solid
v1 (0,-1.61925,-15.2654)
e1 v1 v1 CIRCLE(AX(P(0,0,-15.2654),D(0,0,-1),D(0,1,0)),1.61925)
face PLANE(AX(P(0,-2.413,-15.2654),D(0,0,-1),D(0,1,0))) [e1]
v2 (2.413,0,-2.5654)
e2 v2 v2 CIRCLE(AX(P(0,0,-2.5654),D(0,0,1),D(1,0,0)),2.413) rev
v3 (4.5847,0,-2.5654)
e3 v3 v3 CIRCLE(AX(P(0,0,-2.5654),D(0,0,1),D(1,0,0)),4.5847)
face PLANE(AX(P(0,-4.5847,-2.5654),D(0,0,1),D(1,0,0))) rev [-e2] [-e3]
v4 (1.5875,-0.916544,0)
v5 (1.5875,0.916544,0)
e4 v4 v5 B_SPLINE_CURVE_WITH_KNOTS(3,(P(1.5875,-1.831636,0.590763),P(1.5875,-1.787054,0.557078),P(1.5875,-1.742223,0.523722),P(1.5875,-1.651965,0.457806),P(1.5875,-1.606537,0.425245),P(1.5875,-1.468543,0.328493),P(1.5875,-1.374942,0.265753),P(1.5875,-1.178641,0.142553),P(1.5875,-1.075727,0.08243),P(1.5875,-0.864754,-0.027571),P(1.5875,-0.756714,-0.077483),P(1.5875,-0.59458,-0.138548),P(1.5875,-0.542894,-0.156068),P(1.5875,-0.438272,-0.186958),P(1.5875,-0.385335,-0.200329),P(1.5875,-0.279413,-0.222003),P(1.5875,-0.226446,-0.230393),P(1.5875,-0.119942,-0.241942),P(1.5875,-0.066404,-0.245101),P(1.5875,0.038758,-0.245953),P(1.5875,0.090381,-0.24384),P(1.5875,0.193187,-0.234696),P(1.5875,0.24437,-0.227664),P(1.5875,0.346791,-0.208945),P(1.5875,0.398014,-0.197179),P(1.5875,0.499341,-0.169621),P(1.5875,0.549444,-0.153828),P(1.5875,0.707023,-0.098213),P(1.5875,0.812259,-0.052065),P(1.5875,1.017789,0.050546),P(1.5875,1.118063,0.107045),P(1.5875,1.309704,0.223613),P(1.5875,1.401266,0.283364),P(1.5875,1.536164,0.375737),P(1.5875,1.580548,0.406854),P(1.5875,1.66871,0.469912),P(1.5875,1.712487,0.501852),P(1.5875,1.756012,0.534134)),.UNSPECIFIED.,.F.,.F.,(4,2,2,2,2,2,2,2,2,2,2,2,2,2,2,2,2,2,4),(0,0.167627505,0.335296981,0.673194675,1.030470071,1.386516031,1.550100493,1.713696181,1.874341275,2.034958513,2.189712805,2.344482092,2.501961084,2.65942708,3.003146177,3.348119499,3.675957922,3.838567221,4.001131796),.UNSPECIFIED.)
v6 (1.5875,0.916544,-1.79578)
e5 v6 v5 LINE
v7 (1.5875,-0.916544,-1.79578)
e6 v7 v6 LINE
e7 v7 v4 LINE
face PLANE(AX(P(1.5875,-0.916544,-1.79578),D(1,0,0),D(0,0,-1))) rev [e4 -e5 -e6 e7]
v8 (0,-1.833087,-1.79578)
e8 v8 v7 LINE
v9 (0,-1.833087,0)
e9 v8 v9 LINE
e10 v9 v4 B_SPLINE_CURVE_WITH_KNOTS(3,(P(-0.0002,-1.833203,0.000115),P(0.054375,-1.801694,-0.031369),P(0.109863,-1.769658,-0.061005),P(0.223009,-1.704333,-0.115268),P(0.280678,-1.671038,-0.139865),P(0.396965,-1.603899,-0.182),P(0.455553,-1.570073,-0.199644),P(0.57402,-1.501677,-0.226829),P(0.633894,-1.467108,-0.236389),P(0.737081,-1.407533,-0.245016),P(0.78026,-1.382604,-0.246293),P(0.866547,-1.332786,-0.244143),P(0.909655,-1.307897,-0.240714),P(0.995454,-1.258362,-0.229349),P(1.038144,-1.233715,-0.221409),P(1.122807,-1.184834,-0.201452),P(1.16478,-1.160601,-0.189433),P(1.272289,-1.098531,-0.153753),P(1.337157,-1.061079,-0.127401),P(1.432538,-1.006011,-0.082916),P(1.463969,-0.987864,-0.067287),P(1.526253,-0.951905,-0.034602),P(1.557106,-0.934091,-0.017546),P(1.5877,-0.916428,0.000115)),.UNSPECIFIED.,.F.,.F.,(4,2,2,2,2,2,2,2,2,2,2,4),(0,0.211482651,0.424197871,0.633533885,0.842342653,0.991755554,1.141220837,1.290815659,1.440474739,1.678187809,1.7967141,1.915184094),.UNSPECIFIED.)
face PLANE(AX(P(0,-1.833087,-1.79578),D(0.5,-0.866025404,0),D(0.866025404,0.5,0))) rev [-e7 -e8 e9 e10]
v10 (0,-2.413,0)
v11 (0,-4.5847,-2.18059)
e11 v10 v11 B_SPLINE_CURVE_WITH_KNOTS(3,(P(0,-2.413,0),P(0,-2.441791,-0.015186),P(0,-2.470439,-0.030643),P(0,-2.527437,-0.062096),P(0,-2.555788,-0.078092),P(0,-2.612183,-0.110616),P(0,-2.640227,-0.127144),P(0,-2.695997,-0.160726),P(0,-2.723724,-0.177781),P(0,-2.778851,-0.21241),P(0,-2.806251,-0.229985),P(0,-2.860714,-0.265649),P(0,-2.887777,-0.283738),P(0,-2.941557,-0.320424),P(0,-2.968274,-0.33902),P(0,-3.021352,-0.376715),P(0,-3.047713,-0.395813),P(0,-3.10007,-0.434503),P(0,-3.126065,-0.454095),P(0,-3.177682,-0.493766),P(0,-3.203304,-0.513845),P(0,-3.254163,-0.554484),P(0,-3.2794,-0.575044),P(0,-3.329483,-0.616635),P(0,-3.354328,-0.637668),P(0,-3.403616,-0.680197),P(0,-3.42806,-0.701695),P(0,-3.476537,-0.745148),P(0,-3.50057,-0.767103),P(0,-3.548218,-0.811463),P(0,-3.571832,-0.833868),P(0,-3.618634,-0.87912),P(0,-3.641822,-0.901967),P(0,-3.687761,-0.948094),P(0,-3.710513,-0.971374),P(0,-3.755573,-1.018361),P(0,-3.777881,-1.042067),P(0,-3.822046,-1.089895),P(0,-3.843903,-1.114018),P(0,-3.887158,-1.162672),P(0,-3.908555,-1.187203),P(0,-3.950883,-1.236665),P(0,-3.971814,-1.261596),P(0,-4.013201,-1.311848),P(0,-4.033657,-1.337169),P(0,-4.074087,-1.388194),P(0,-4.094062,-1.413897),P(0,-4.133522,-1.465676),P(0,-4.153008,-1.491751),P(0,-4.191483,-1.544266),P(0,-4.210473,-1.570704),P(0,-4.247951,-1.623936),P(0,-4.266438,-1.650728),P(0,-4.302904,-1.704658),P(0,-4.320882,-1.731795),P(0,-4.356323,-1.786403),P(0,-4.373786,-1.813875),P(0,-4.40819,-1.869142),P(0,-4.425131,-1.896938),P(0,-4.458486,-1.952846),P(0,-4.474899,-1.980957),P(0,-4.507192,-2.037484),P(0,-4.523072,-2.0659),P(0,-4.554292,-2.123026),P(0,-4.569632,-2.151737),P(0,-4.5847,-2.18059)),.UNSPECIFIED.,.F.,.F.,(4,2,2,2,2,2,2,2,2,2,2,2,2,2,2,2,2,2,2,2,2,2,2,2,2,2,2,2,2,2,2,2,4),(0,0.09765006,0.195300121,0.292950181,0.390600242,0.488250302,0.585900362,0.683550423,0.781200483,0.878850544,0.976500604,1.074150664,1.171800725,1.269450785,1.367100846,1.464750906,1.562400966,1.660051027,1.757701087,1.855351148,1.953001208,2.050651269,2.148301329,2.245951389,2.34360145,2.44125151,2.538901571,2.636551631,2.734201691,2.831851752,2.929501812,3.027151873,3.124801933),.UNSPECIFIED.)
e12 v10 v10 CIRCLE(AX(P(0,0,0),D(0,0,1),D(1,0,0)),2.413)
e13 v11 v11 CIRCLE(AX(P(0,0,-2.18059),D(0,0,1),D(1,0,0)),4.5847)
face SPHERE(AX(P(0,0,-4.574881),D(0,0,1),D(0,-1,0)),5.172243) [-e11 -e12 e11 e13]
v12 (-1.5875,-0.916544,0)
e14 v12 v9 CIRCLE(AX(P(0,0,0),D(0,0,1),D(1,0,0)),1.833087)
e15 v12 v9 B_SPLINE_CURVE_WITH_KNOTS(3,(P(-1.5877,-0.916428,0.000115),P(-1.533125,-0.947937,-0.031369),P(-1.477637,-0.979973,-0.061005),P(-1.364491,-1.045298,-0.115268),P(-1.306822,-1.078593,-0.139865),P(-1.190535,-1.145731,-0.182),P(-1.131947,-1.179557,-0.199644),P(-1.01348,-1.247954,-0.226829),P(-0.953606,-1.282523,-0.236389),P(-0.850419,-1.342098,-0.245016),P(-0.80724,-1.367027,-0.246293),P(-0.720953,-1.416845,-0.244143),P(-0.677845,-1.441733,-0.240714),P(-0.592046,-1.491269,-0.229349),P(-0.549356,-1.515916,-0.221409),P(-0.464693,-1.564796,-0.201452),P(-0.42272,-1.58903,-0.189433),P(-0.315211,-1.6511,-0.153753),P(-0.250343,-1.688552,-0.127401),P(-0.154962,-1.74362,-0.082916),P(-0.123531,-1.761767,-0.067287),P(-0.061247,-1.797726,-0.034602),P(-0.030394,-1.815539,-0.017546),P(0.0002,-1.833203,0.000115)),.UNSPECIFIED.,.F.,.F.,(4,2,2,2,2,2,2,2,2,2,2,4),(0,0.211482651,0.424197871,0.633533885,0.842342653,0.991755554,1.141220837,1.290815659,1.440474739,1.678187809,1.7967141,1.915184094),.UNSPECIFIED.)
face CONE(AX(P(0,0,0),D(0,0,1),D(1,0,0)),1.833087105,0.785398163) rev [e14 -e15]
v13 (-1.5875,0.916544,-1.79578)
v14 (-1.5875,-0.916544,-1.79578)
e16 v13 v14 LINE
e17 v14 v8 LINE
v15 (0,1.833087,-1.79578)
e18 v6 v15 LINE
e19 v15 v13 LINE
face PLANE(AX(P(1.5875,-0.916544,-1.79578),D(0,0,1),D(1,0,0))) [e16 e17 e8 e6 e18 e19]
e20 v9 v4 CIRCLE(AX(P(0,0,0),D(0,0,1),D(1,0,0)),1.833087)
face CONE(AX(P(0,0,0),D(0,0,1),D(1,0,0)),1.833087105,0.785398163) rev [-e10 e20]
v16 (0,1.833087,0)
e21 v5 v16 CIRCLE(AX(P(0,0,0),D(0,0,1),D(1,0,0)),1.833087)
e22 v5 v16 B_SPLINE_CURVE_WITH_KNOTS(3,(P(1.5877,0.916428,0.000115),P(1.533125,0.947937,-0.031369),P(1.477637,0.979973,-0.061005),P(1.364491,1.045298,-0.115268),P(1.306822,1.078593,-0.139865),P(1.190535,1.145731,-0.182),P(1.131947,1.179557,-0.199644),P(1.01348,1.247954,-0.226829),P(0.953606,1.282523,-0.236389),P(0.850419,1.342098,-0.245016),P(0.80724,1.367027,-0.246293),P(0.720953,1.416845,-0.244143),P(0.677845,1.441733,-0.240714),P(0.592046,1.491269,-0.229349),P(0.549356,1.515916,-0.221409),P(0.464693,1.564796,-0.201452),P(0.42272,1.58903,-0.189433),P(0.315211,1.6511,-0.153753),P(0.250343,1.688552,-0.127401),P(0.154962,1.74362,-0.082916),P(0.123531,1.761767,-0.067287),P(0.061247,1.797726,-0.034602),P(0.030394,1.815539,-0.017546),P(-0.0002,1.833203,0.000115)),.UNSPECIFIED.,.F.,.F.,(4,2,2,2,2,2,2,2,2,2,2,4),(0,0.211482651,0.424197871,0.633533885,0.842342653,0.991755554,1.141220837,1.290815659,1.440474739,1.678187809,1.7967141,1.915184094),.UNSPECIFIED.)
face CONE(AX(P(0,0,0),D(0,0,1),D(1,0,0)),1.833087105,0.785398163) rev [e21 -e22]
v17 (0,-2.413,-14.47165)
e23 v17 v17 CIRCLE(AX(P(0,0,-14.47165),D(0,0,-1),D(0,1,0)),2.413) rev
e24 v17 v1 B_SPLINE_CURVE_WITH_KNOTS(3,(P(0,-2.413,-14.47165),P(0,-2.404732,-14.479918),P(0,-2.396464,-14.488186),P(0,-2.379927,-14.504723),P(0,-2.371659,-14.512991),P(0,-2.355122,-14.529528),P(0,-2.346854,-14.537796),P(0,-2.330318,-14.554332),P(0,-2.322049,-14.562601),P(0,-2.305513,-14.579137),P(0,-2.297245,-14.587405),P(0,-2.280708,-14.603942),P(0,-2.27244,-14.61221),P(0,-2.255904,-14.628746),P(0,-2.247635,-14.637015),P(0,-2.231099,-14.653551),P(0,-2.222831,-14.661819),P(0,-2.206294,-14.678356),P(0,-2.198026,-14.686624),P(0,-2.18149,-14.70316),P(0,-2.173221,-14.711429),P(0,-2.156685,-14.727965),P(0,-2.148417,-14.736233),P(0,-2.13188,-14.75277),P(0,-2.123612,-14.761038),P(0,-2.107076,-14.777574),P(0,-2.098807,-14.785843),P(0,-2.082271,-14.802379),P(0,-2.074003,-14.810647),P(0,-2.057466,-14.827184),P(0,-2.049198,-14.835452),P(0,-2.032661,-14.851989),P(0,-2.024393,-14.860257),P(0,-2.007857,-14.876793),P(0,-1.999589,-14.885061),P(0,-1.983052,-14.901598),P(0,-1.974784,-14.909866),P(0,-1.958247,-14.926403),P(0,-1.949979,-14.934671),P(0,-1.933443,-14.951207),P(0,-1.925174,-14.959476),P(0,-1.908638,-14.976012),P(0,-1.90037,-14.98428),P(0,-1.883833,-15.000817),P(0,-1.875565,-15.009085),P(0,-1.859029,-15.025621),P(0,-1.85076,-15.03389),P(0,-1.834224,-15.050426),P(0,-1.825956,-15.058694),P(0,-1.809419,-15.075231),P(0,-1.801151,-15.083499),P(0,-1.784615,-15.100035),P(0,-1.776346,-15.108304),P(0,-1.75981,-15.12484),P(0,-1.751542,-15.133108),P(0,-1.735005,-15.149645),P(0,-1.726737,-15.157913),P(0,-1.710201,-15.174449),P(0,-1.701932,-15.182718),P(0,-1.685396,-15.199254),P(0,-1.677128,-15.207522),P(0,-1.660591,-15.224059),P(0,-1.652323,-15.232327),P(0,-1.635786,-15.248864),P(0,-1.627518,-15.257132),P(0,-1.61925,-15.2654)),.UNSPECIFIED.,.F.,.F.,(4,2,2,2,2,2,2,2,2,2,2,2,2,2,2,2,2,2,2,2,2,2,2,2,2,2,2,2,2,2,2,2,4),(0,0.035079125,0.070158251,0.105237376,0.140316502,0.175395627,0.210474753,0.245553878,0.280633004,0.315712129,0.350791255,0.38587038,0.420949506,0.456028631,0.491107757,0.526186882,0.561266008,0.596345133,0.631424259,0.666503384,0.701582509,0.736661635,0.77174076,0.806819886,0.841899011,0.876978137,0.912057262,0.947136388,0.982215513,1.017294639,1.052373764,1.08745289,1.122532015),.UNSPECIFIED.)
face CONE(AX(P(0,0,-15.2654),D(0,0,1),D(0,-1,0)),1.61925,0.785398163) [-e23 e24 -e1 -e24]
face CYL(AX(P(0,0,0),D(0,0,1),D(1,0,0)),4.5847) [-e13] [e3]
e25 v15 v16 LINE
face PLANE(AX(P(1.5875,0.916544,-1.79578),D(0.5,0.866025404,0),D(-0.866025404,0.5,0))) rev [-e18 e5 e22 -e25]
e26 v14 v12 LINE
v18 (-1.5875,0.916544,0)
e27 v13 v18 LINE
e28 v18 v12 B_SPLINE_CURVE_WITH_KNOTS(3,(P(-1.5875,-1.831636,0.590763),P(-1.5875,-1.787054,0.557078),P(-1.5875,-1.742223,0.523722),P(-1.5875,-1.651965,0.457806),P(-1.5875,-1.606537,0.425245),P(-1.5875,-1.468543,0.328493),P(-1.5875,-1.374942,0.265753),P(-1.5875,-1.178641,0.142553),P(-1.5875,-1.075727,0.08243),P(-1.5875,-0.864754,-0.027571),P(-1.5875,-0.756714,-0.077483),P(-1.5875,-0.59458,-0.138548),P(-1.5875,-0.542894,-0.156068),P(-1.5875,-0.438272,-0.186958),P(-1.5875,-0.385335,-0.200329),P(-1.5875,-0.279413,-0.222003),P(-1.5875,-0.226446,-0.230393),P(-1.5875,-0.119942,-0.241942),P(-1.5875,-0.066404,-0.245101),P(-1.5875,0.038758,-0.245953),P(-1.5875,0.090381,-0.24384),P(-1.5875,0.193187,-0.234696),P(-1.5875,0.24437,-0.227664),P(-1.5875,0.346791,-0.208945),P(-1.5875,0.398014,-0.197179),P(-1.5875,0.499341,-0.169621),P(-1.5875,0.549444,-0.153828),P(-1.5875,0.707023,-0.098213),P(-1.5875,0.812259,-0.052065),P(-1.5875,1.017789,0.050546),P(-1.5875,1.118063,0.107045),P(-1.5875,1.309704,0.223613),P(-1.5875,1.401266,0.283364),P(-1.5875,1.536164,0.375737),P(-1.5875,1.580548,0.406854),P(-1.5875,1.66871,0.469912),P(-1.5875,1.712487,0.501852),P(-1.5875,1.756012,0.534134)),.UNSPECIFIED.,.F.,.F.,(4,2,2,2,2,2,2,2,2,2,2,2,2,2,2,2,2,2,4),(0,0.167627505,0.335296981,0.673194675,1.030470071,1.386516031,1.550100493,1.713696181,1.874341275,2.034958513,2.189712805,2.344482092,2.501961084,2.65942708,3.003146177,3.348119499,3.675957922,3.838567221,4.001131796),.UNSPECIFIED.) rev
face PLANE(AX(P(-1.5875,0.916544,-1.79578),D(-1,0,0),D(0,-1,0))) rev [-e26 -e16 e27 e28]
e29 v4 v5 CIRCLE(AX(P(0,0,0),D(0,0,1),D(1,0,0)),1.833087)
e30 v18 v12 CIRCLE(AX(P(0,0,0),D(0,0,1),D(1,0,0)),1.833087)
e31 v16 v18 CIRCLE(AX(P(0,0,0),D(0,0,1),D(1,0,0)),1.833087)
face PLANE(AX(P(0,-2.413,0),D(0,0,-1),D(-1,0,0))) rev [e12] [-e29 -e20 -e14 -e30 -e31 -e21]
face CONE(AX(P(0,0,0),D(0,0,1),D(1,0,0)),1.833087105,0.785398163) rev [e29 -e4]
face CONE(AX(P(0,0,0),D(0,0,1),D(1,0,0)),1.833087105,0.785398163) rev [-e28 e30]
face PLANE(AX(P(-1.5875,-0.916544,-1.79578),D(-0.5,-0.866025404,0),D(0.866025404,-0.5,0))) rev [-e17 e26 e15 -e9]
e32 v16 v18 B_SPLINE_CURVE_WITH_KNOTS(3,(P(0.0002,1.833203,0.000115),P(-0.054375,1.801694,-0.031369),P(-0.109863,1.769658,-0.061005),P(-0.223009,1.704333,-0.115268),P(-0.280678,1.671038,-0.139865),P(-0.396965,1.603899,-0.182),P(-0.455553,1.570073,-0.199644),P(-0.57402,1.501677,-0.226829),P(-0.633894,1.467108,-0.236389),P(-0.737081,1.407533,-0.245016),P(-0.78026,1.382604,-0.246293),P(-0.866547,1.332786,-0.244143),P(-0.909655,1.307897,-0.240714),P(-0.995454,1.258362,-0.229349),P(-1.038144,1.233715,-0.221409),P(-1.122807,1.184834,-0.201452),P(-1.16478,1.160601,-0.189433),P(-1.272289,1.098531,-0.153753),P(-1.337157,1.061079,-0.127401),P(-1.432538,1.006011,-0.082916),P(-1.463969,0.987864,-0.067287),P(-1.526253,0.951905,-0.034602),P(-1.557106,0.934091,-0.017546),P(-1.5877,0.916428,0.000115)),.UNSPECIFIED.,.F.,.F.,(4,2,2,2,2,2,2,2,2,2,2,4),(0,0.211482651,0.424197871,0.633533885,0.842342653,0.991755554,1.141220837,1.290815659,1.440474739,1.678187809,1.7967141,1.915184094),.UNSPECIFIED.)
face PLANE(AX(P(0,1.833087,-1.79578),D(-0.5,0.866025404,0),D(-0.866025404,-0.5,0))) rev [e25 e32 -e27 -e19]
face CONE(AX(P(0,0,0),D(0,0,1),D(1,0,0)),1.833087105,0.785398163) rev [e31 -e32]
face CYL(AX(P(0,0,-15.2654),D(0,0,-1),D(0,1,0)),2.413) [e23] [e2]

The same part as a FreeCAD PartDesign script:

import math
import FreeCAD as App
import Part
import Sketcher
from FreeCAD import Vector
Q = App.Units.Quantity


def edges_at(feature, points):
    """Names of the edges that pass closest to the given points."""
    edges = feature.Shape.Edges
    near = lambda p: min(range(len(edges)), key=lambda i: edges[i].distToShape(Part.Vertex(*p))[0])
    return sorted({f"Edge{near(p) + 1}" for p in points})


def add_polygon(sketch, points):
    """Adds a closed chain of lines whose ends are joined by coincident constraints."""
    first, n = sketch.GeometryCount, len(points)
    for a, b in zip(points, points[1:] + points[:1]):
        sketch.addGeometry(Part.LineSegment(App.Vector(*a, 0), App.Vector(*b, 0)), False)
    for i in range(n):
        sketch.addConstraint(Sketcher.Constraint("Coincident", first + i, 2, first + (i + 1) % n, 1))

doc = App.newDocument("Part")
body = doc.addObject("PartDesign::Body", "Body")

# Sketch on YZ plane
sketch1 = body.newObject("Sketcher::SketchObject", "Sketch")
sketch1.AttachmentSupport = (doc.getObject("YZ_Plane"), [""])
sketch1.MapMode = "FlatFace"
add_polygon(sketch1, [(2.4, -2.6), (0, -2.6), (0, -15.3), (2.4, -15.3)])  # lines 0-3
sketch1.addConstraint(Sketcher.Constraint("Horizontal", 0))
sketch1.addConstraint(Sketcher.Constraint("Vertical", 1))
sketch1.addConstraint(Sketcher.Constraint("Horizontal", 2))
sketch1.addConstraint(Sketcher.Constraint("Vertical", 3))
sketch1.addConstraint(Sketcher.Constraint("PointOnObject", 0, 2, -2))
sketch1.addConstraint(Sketcher.Constraint("DistanceY", 1, 2, 1, 1, Q("0.5 in")))
sketch1.addConstraint(Sketcher.Constraint("DistanceX", 0, 2, 0, 1, Q("0.095 in")))
sketch1.addConstraint(Sketcher.Constraint("DistanceY", 0, 2, -1, 1, Q("0.101 in")))
revolution = body.newObject("PartDesign::Revolution", "Revolution")
revolution.Profile = sketch1
revolution.ReferenceAxis = (sketch1, ["V_Axis"])
revolution.Angle = 360
doc.recompute()

chamfer = body.newObject("PartDesign::Chamfer", "Chamfer")
chamfer.Base = (revolution, edges_at(revolution, [(0, -2.413, -15.265)]))
chamfer.Size = Q("0.03125 in")

# Sketch on YZ plane
sketch2 = body.newObject("Sketcher::SketchObject", "Sketch001")
sketch2.AttachmentSupport = (doc.getObject("YZ_Plane"), [""])
sketch2.MapMode = "FlatFace"
sketch2.addGeometry(Part.LineSegment(Vector(4.58, -2.57, 0), Vector(4.58, -2.18, 0)), False)
sketch2.addGeometry(Part.ArcOfCircle(Part.Circle(Vector(0, -4.57, 0), Vector(0, 0, 1), 5.17), math.radians(28), math.radians(62)), False)
sketch2.addGeometry(Part.LineSegment(Vector(2.41, 0, 0), Vector(0, 0, 0)), False)
sketch2.addGeometry(Part.LineSegment(Vector(0, 0, 0), Vector(0, -2.57, 0)), False)
sketch2.addGeometry(Part.LineSegment(Vector(0, -2.57, 0), Vector(4.58, -2.57, 0)), False)
sketch2.addConstraint(Sketcher.Constraint("Coincident", 0, 2, 1, 1))
sketch2.addConstraint(Sketcher.Constraint("Coincident", 1, 2, 2, 1))
sketch2.addConstraint(Sketcher.Constraint("Coincident", 2, 2, 3, 1))
sketch2.addConstraint(Sketcher.Constraint("Coincident", 3, 2, 4, 1))
sketch2.addConstraint(Sketcher.Constraint("Coincident", 4, 2, 0, 1))
sketch2.addConstraint(Sketcher.Constraint("Vertical", 0))
sketch2.addConstraint(Sketcher.Constraint("Horizontal", 2))
sketch2.addConstraint(Sketcher.Constraint("Vertical", 3))
sketch2.addConstraint(Sketcher.Constraint("Horizontal", 4))
sketch2.addConstraint(Sketcher.Constraint("Coincident", 2, 2, -1, 1))
sketch2.addConstraint(Sketcher.Constraint("PointOnObject", 1, 3, -2))
sketch2.addConstraint(Sketcher.Constraint("DistanceX", 2, 2, 2, 1, Q("0.095 in")))
sketch2.addConstraint(Sketcher.Constraint("DistanceY", 3, 2, 3, 1, Q("0.101 in")))
sketch2.addConstraint(Sketcher.Constraint("DistanceX", 4, 1, 4, 2, Q("0.1805 in")))
sketch2.addConstraint(Sketcher.Constraint("Radius", 1, 5.172243))
revolution2 = body.newObject("PartDesign::Revolution", "Revolution001")
revolution2.Profile = sketch2
revolution2.ReferenceAxis = (sketch2, ["V_Axis"])
revolution2.Angle = 360

# Sketch on XY plane
sketch3 = body.newObject("Sketcher::SketchObject", "Sketch002")
sketch3.AttachmentSupport = (doc.getObject("XY_Plane"), [""])
sketch3.MapMode = "FlatFace"
add_polygon(sketch3, [(1.6, -0.9), (1.6, 0.9), (0, 1.8), (-1.6, 0.9), (-1.6, -0.9), (0, -1.8)])  # lines 0-5
sketch3.addConstraint(Sketcher.Constraint("Vertical", 0))
sketch3.addConstraint(Sketcher.Constraint("Vertical", 3))
sketch3.addConstraint(Sketcher.Constraint("Symmetric", 0, 2, 3, 2, -1, 1))
sketch3.addConstraint(Sketcher.Constraint("Symmetric", 1, 2, 4, 2, -1, 1))
sketch3.addConstraint(Sketcher.Constraint("PointOnObject", 1, 2, -2))
sketch3.addConstraint(Sketcher.Constraint("Parallel", 2, 5))
sketch3.addConstraint(Sketcher.Constraint("Horizontal", 0, 2, 2, 2))
sketch3.addConstraint(Sketcher.Constraint("Angle", 1, Q("150 deg")))
sketch3.addConstraint(Sketcher.Constraint("DistanceX", -1, 1, 0, 2, Q("0.0625 in")))
sketch3.addConstraint(Sketcher.Constraint("DistanceY", 0, 1, 0, 2, 1.833087))
pocket1 = body.newObject("PartDesign::Pocket", "Pocket")
pocket1.Profile = sketch3
pocket1.Length = Q("0.0707 in")

# Sketch on XY plane
sketch4 = body.newObject("Sketcher::SketchObject", "Sketch003")
sketch4.AttachmentSupport = (doc.getObject("XY_Plane"), [""])
sketch4.MapMode = "FlatFace"
sketch4.addGeometry(Part.Circle(Vector(0, 0, 0), Vector(0, 0, 1), 1.8), False)
sketch4.addConstraint(Sketcher.Constraint("Coincident", 0, 3, -1, 1))
sketch4.addConstraint(Sketcher.Constraint("Diameter", 0, 3.666174))
pocket2 = body.newObject("PartDesign::Pocket", "Pocket001")
pocket2.Profile = sketch4
pocket2.Length = Q("0.0707 in")
pocket2.TaperAngle = -45

doc.recompute()
